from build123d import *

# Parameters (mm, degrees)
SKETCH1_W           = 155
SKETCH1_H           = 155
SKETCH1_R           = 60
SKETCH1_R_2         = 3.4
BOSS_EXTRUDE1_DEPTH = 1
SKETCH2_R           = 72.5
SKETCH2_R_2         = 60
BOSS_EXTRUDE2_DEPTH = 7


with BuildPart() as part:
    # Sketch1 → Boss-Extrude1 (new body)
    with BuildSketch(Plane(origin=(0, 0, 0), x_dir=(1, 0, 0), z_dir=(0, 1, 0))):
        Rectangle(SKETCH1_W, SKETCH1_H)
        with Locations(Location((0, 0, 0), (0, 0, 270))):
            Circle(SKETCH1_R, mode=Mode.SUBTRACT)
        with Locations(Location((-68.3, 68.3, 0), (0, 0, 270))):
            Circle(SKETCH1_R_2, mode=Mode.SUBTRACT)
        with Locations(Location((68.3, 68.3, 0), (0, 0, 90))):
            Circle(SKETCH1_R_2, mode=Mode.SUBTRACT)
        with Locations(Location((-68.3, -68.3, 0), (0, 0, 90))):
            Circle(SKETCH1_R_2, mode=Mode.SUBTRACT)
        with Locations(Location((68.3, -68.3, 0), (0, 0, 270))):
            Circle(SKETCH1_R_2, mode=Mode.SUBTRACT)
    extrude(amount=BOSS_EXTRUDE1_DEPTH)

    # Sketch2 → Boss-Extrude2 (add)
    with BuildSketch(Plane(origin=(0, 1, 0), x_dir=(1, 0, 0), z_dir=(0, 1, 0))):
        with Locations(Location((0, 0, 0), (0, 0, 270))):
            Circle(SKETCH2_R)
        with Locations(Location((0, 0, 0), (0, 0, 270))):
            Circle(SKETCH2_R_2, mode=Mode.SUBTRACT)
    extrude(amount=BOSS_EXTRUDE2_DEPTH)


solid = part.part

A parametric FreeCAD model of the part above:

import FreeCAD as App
import Part
import Sketcher

V = App.Vector
Q = App.Units.Quantity


def add_polygon(sketch, points):
    """Adds a closed chain of lines whose ends are joined by coincident constraints."""
    first, n = sketch.GeometryCount, len(points)
    for a, b in zip(points, points[1:] + points[:1]):
        sketch.addGeometry(Part.LineSegment(App.Vector(*a, 0), App.Vector(*b, 0)), False)
    for i in range(n):
        sketch.addConstraint(Sketcher.Constraint("Coincident", first + i, 2, first + (i + 1) % n, 1))

doc = App.newDocument("Part")
params = doc.addObject("Spreadsheet::Sheet", "Params")
for row, (alias, value) in enumerate([
    ("sketch1_diameter", "120 mm"),
    ("sketch1_diameter2", "6.8 mm"),
    ("sketch1_width", "155 mm"),
    ("pad1_length", "1 mm"),
    ("sketch2_diameter", "145 mm"),
    ("sketch2_diameter2", "120 mm"),
    ("pad2_length", "7 mm"),
], start=1):
    params.set(f"A{row}", alias)
    params.set(f"B{row}", "=" + value)
    params.setAlias(f"B{row}", alias)

body = doc.addObject("PartDesign::Body", "Body")

sketch1 = doc.addObject("Sketcher::SketchObject", "Sketch")
body.addObject(sketch1)
sketch1.AttachmentSupport = (doc.XZ_Plane, [""])
sketch1.MapMode = "FlatFace"
add_polygon(sketch1, [(-77.5, -77.5), (-77.5, 77.5), (77.5, 77.5), (77.5, -77.5)])
sketch1.addGeometry(Part.Circle(V(-68.3, 68.3, 0), V(0, 0, 1), 3.4), False)
sketch1.addGeometry(Part.Circle(V(68.3, 68.3, 0), V(0, 0, 1), 3.4), False)
sketch1.addGeometry(Part.Circle(V(-68.3, -68.3, 0), V(0, 0, 1), 3.4), False)
sketch1.addGeometry(Part.Circle(V(0, 0, 0), V(0, 0, 1), 60), False)
sketch1.addGeometry(Part.Circle(V(68.3, -68.3, 0), V(0, 0, 1), 3.4), False)
sketch1.addConstraint([
    Sketcher.Constraint("Vertical", 0),
    Sketcher.Constraint("Horizontal", 1),
    Sketcher.Constraint("Vertical", 2),
    Sketcher.Constraint("Horizontal", 3),
    Sketcher.Constraint("Coincident", 7, 3, -1, 1),
    Sketcher.Constraint("Equal", 4, 5),
    Sketcher.Constraint("Equal", 5, 6),
    Sketcher.Constraint("Equal", 6, 8),
    Sketcher.Constraint("Symmetric", 5, 3, 6, 3, -1, 1),
    Sketcher.Constraint("Symmetric", 4, 3, 8, 3, -1, 1),
    Sketcher.Constraint("Symmetric", 0, 2, 2, 2, -1, 1),
    Sketcher.Constraint("Symmetric", 4, 3, 5, 3, -2),
    Sketcher.Constraint("Equal", 3, 0),
    Sketcher.Constraint("Diameter", 7, Q("120 mm")),
    Sketcher.Constraint("Diameter", 4, Q("6.8 mm")),
    Sketcher.Constraint("DistanceX", 1, 1, 1, 2, Q("155 mm")),
    Sketcher.Constraint("DistanceX", 4, 3, -1, 1, Q("68.3 mm")),
    Sketcher.Constraint("DistanceY", -1, 1, 4, 3, Q("68.3 mm")),
])
sketch1.setExpression("Constraints[17]", "Params.sketch1_diameter")
sketch1.setExpression("Constraints[18]", "Params.sketch1_diameter2")
sketch1.setExpression("Constraints[19]", "Params.sketch1_width")
pad1 = doc.addObject("PartDesign::Pad", "Pad")
body.addObject(pad1)
pad1.Profile = sketch1
pad1.setExpression("Length", "Params.pad1_length")
pad1.Reversed = True

sketch2 = doc.addObject("Sketcher::SketchObject", "Sketch001")
body.addObject(sketch2)
sketch2.AttachmentSupport = (doc.XZ_Plane, [""])
sketch2.MapMode = "FlatFace"
sketch2.AttachmentOffset = App.Placement(V(0, 0, -1), App.Rotation())
sketch2.addGeometry([
    Part.Circle(V(0, 0, 0), V(0, 0, 1), 72),
    Part.Circle(V(0, 0, 0), V(0, 0, 1), 60),
], False)
sketch2.addConstraint([
    Sketcher.Constraint("Coincident", 0, 3, -1, 1),
    Sketcher.Constraint("Coincident", 1, 3, -1, 1),
    Sketcher.Constraint("Diameter", 0, Q("145 mm")),
    Sketcher.Constraint("Diameter", 1, Q("120 mm")),
])
sketch2.setExpression("Constraints[2]", "Params.sketch2_diameter")
sketch2.setExpression("Constraints[3]", "Params.sketch2_diameter2")
pad2 = doc.addObject("PartDesign::Pad", "Pad001")
body.addObject(pad2)
pad2.Profile = sketch2
pad2.setExpression("Length", "Params.pad2_length")
pad2.Reversed = True

doc.recompute()
